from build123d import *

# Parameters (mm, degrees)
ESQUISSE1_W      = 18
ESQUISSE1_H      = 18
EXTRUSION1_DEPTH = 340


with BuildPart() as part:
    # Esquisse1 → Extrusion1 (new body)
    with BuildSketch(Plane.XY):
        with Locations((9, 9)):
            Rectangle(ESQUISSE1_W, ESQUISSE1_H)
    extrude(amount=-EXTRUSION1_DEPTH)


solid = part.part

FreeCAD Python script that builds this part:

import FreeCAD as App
import Part
import Sketcher

V = App.Vector


def add_polygon(sketch, points):
    """Adds a closed chain of lines whose ends are joined by coincident constraints."""
    first, n = sketch.GeometryCount, len(points)
    for a, b in zip(points, points[1:] + points[:1]):
        sketch.addGeometry(Part.LineSegment(App.Vector(*a, 0), App.Vector(*b, 0)), False)
    for i in range(n):
        sketch.addConstraint(Sketcher.Constraint("Coincident", first + i, 2, first + (i + 1) % n, 1))

doc = App.newDocument("Part")
body = doc.addObject("PartDesign::Body", "Body")

sketch1 = body.newObject("Sketcher::SketchObject", "Sketch")
sketch1.AttachmentSupport = (doc.getObject("XY_Plane"), [""])
sketch1.MapMode = "FlatFace"
add_polygon(sketch1, [(0, 18), (0, 0), (18, 0), (18, 18)])
sketch1.addConstraint([
    Sketcher.Constraint("Vertical", 0),
    Sketcher.Constraint("Horizontal", 1),
    Sketcher.Constraint("Vertical", 2),
    Sketcher.Constraint("Horizontal", 3),
    Sketcher.Constraint("Coincident", 0, 2, -1, 1),
    Sketcher.Constraint("Equal", 3, 0),
    Sketcher.Constraint("DistanceX", 1, 1, 1, 2, 18.0),
])
pad1 = body.newObject("PartDesign::Pad", "Pad")
pad1.Profile = sketch1
pad1.Length = 340
pad1.Reversed = True

doc.recompute()
